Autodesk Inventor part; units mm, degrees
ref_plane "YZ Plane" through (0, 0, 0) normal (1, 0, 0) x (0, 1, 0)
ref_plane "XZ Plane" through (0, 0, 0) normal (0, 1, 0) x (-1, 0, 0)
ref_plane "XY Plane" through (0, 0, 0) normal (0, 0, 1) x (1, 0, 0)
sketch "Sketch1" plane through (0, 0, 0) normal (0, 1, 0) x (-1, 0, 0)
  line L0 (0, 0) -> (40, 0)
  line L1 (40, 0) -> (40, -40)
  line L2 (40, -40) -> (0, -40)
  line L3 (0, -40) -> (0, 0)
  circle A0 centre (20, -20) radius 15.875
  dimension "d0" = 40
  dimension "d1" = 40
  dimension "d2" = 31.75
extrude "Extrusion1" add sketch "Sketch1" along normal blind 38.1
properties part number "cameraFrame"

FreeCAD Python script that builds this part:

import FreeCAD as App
import Part
import Sketcher
Q = App.Units.Quantity

doc = App.newDocument("Part")
params = doc.addObject("Spreadsheet::Sheet", "Params")
for row, (alias, value) in enumerate([
    ("sketch1_diameter", "1.25 in"),
    ("pad1_length", "1.5 in"),
], start=1):
    params.set(f"A{row}", alias)
    params.set(f"B{row}", "=" + value)
    params.setAlias(f"B{row}", alias)

body = doc.addObject("PartDesign::Body", "Body")

# Sketch on XZ plane
sketch1 = body.newObject("Sketcher::SketchObject", "Sketch")
sketch1.AttachmentSupport = (doc.getObject("XZ_Plane"), [""])
sketch1.MapMode = "FlatFace"
sketch1.addGeometry([
    Part.LineSegment(App.Vector(-40, 0, 0), App.Vector(0, 0, 0)),  # 0
    Part.LineSegment(App.Vector(0, 0, 0), App.Vector(0, -40, 0)),  # 1
    Part.LineSegment(App.Vector(0, -40, 0), App.Vector(-40, -40, 0)),  # 2
    Part.LineSegment(App.Vector(-40, -40, 0), App.Vector(-40, 0, 0)),  # 3
    Part.Circle(App.Vector(-20, -20, 0), App.Vector(0, 0, 1), 16),  # 4
], False)
sketch1.addConstraint([
    Sketcher.Constraint("Coincident", 0, 2, 1, 1),
    Sketcher.Constraint("Coincident", 1, 2, 2, 1),
    Sketcher.Constraint("Coincident", 2, 2, 3, 1),
    Sketcher.Constraint("Coincident", 3, 2, 0, 1),
    Sketcher.Constraint("Horizontal", 0),
    Sketcher.Constraint("Vertical", 1),
    Sketcher.Constraint("Horizontal", 2),
    Sketcher.Constraint("Vertical", 3),
    Sketcher.Constraint("Coincident", 0, 2, -1, 1),
    Sketcher.Constraint("Equal", 2, 1),
    Sketcher.Constraint("Diameter", 4, Q("1.25 in")),
    Sketcher.Constraint("DistanceX", 0, 1, 0, 2, Q("1.5748 in")),
    Sketcher.Constraint("DistanceX", 4, 3, -1, 1, Q("0.7874 in")),
    Sketcher.Constraint("DistanceY", 4, 3, -1, 1, Q("0.7874 in")),
])
sketch1.setExpression("Constraints[10]", "Params.sketch1_diameter")
pad1 = body.newObject("PartDesign::Pad", "Pad")
pad1.Profile = sketch1
pad1.setExpression("Length", "Params.pad1_length")
pad1.Reversed = True

doc.recompute()
